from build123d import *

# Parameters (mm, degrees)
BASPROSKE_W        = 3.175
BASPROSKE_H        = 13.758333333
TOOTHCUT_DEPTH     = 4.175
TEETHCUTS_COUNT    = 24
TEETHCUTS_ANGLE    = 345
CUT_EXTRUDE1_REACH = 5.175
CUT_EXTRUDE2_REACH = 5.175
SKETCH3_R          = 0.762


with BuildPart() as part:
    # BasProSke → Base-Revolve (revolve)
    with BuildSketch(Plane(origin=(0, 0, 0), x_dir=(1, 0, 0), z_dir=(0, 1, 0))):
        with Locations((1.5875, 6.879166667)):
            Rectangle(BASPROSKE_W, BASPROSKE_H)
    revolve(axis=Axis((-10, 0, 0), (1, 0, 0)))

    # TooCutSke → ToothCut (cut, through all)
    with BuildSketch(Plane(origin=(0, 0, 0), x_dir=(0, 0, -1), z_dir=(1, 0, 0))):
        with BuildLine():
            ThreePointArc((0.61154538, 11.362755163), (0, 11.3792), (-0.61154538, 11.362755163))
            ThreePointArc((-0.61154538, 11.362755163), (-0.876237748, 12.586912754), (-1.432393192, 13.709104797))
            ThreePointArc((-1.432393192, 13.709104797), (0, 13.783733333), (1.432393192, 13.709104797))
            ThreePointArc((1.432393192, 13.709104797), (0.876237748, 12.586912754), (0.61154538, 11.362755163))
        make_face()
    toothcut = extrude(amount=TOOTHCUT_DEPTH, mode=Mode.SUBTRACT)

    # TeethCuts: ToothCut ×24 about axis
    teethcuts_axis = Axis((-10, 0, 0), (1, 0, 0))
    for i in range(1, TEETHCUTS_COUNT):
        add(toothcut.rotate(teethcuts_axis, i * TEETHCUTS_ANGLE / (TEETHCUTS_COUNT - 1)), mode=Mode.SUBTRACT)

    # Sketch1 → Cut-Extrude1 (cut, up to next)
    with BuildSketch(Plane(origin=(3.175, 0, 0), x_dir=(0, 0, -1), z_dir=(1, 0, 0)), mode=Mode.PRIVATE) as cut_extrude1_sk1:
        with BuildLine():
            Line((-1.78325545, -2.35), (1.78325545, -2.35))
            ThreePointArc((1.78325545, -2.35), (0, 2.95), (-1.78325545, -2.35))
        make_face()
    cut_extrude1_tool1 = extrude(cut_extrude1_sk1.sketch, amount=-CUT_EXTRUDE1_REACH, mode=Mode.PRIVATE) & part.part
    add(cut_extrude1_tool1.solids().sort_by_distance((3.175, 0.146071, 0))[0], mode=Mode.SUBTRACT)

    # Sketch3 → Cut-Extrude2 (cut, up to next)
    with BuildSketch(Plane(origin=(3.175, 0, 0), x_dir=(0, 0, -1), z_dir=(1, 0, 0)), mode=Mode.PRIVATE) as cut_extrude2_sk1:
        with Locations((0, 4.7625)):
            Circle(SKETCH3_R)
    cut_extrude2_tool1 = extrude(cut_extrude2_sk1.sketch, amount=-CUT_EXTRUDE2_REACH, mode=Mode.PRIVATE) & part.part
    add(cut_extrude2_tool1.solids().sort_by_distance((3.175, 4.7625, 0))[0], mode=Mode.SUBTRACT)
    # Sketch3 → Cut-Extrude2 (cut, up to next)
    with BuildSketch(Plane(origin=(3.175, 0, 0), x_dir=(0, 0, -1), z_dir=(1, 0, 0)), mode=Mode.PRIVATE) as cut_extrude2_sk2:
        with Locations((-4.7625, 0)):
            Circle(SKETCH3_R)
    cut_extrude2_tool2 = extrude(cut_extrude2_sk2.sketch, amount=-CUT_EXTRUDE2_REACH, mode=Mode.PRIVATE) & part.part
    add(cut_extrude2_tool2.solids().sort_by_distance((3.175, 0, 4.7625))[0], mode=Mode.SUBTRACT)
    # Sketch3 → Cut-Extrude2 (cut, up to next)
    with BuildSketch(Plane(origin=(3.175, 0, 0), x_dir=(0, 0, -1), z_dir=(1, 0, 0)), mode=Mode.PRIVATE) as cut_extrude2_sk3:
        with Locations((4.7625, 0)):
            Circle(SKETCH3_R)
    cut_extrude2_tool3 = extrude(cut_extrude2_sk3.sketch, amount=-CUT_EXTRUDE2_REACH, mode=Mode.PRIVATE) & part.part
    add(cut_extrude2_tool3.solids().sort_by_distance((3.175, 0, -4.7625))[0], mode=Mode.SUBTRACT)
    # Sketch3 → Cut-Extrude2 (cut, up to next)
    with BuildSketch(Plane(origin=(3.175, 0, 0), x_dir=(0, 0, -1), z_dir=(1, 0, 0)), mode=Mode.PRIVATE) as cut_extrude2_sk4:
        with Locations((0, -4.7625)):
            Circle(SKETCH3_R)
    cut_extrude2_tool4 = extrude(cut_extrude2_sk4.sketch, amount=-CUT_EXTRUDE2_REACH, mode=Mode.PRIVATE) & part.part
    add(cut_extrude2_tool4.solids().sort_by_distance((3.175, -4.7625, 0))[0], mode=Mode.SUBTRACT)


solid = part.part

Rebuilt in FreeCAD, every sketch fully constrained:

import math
import FreeCAD as App
import Part
import Sketcher
Q = App.Units.Quantity


def add_polygon(sketch, points):
    """Adds a closed chain of lines whose ends are joined by coincident constraints."""
    first, n = sketch.GeometryCount, len(points)
    for a, b in zip(points, points[1:] + points[:1]):
        sketch.addGeometry(Part.LineSegment(App.Vector(*a, 0), App.Vector(*b, 0)), False)
    for i in range(n):
        sketch.addConstraint(Sketcher.Constraint("Coincident", first + i, 2, first + (i + 1) % n, 1))

doc = App.newDocument("Part")
body = doc.addObject("PartDesign::Body", "Body")

# Sketch on XZ plane
sketch1 = body.newObject("Sketcher::SketchObject", "Sketch")
sketch1.AttachmentSupport = (doc.getObject("XZ_Plane"), [""])
sketch1.MapMode = "FlatFace"
add_polygon(sketch1, [(0, -13.8), (0, 0), (3.2, 0), (3.2, -13.8)])  # lines 0-3
sketch1.addConstraint([
    Sketcher.Constraint("Vertical", 0),
    Sketcher.Constraint("Horizontal", 1),
    Sketcher.Constraint("Vertical", 2),
    Sketcher.Constraint("Horizontal", 3),
    Sketcher.Constraint("Coincident", 0, 2, -1, 1),
    Sketcher.Constraint("DistanceX", 1, 1, 1, 2, Q("0.125 in")),
    Sketcher.Constraint("DistanceY", 0, 1, 0, 2, 13.758333),
])
revolution = body.newObject("PartDesign::Revolution", "Revolution")
revolution.Profile = sketch1
revolution.ReferenceAxis = (sketch1, ["H_Axis"])
revolution.Angle = 360

# Sketch on YZ plane
sketch2 = body.newObject("Sketcher::SketchObject", "Sketch001")
sketch2.AttachmentSupport = (doc.getObject("YZ_Plane"), [""])
sketch2.MapMode = "FlatFace"
sketch2.addGeometry([
    Part.ArcOfCircle(Part.Circle(App.Vector(0, 0, 0), App.Vector(0, 0, 1), 11.4), math.radians(-3.08), math.radians(3.08)),
    Part.ArcOfCircle(Part.Circle(App.Vector(10.9, -5.7, 0), App.Vector(0, 0, 1), 5.1), math.radians(57), math.radians(85)),
    Part.ArcOfCircle(Part.Circle(App.Vector(0, 0, 0), App.Vector(0, 0, 1), 13.8), math.radians(-5.96), math.radians(5.96)),
    Part.ArcOfCircle(Part.Circle(App.Vector(10.9, 5.7, 0), App.Vector(0, 0, 1), 5.1), math.radians(-85), math.radians(-57)),
], False)
sketch2.addConstraint([
    Sketcher.Constraint("Coincident", 0, 1, 1, 2),
    Sketcher.Constraint("Coincident", 1, 1, 2, 1),
    Sketcher.Constraint("Coincident", 2, 2, 3, 2),
    Sketcher.Constraint("Coincident", 3, 1, 0, 2),
    Sketcher.Constraint("Coincident", 0, 3, -1, 1),
    Sketcher.Constraint("Coincident", 2, 3, -1, 1),
    Sketcher.Constraint("Equal", 1, 3),
    Sketcher.Constraint("Symmetric", 1, 3, 3, 3, -1),
    Sketcher.Constraint("Radius", 1, Q("0.2 in")),
    Sketcher.Constraint("Radius", 0, Q("0.448 in")),
    Sketcher.Constraint("Radius", 2, 13.783733),
    Sketcher.Constraint("DistanceX", 1, 3, 0, 1, 0.453341),
    Sketcher.Constraint("DistanceX", 0, 1, 1, 1, 2.34635),
])
pocket1 = body.newObject("PartDesign::Pocket", "Pocket")
pocket1.Profile = sketch2
pocket1.Type = "ThroughAll"
pocket1.Reversed = True
doc.recompute()

polarpattern = body.newObject("PartDesign::PolarPattern", "PolarPattern")
polarpattern.Originals = [pocket1]
polarpattern.Axis = (doc.getObject("X_Axis"), [""])
polarpattern.Angle = 360
polarpattern.Occurrences = 24
body.Tip = polarpattern

# Sketch on YZ plane
sketch3 = body.newObject("Sketcher::SketchObject", "Sketch002")
sketch3.AttachmentSupport = (doc.getObject("YZ_Plane"), [""])
sketch3.MapMode = "FlatFace"
sketch3.AttachmentOffset = App.Placement(App.Vector(0, 0, 0.125 * 25.4), App.Rotation())
sketch3.addGeometry([
    Part.LineSegment(App.Vector(-2.4, 1.8, 0), App.Vector(-2.4, -1.8, 0)),
    Part.ArcOfCircle(Part.Circle(App.Vector(0, 0, 0), App.Vector(0, 0, 1), 3), math.radians(-143), math.radians(143)),
], False)
sketch3.addConstraint([
    Sketcher.Constraint("Coincident", 0, 1, 1, 2),
    Sketcher.Constraint("Coincident", 1, 1, 0, 2),
    Sketcher.Constraint("Vertical", 0),
    Sketcher.Constraint("Coincident", 1, 3, -1, 1),
    Sketcher.Constraint("Radius", 1, 2.95),
    Sketcher.Constraint("DistanceY", 0, 2, 0, 1, 3.566511),
])
pocket2 = body.newObject("PartDesign::Pocket", "Pocket001")
pocket2.Profile = sketch3
pocket2.Type = "UpToFirst"

# Sketch on YZ plane
sketch4 = body.newObject("Sketcher::SketchObject", "Sketch003")
sketch4.AttachmentSupport = (doc.getObject("YZ_Plane"), [""])
sketch4.MapMode = "FlatFace"
sketch4.AttachmentOffset = App.Placement(App.Vector(0, 0, 0.125 * 25.4), App.Rotation())
sketch4.addGeometry(Part.Circle(App.Vector(4.8, 0, 0), App.Vector(0, 0, 1), 0.8), False)
sketch4.addConstraint([
    Sketcher.Constraint("PointOnObject", 0, 3, -1),
    Sketcher.Constraint("Diameter", 0, Q("0.06 in")),
    Sketcher.Constraint("DistanceX", -1, 1, 0, 3, Q("0.1875 in")),
])
pocket3 = body.newObject("PartDesign::Pocket", "Pocket002")
pocket3.Profile = sketch4
pocket3.Type = "UpToFirst"

# Sketch on YZ plane
sketch5 = body.newObject("Sketcher::SketchObject", "Sketch004")
sketch5.AttachmentSupport = (doc.getObject("YZ_Plane"), [""])
sketch5.MapMode = "FlatFace"
sketch5.AttachmentOffset = App.Placement(App.Vector(0, 0, 0.125 * 25.4), App.Rotation())
sketch5.addGeometry(Part.Circle(App.Vector(0, 4.8, 0), App.Vector(0, 0, 1), 0.8), False)
sketch5.addConstraint([
    Sketcher.Constraint("PointOnObject", 0, 3, -2),
    Sketcher.Constraint("Diameter", 0, Q("0.06 in")),
    Sketcher.Constraint("DistanceY", -1, 1, 0, 3, Q("0.1875 in")),
])
pocket4 = body.newObject("PartDesign::Pocket", "Pocket003")
pocket4.Profile = sketch5
pocket4.Type = "UpToFirst"

# Sketch on YZ plane
sketch6 = body.newObject("Sketcher::SketchObject", "Sketch005")
sketch6.AttachmentSupport = (doc.getObject("YZ_Plane"), [""])
sketch6.MapMode = "FlatFace"
sketch6.AttachmentOffset = App.Placement(App.Vector(0, 0, 0.125 * 25.4), App.Rotation())
sketch6.addGeometry(Part.Circle(App.Vector(0, -4.8, 0), App.Vector(0, 0, 1), 0.8), False)
sketch6.addConstraint([
    Sketcher.Constraint("PointOnObject", 0, 3, -2),
    Sketcher.Constraint("Diameter", 0, Q("0.06 in")),
    Sketcher.Constraint("DistanceY", 0, 3, -1, 1, Q("0.1875 in")),
])
pocket5 = body.newObject("PartDesign::Pocket", "Pocket004")
pocket5.Profile = sketch6
pocket5.Type = "UpToFirst"

# Sketch on YZ plane
sketch7 = body.newObject("Sketcher::SketchObject", "Sketch006")
sketch7.AttachmentSupport = (doc.getObject("YZ_Plane"), [""])
sketch7.MapMode = "FlatFace"
sketch7.AttachmentOffset = App.Placement(App.Vector(0, 0, 0.125 * 25.4), App.Rotation())
sketch7.addGeometry(Part.Circle(App.Vector(-4.8, 0, 0), App.Vector(0, 0, 1), 0.8), False)
sketch7.addConstraint([
    Sketcher.Constraint("PointOnObject", 0, 3, -1),
    Sketcher.Constraint("Diameter", 0, Q("0.06 in")),
    Sketcher.Constraint("DistanceX", 0, 3, -1, 1, Q("0.1875 in")),
])
pocket6 = body.newObject("PartDesign::Pocket", "Pocket005")
pocket6.Profile = sketch7
pocket6.Type = "UpToFirst"

doc.recompute()
